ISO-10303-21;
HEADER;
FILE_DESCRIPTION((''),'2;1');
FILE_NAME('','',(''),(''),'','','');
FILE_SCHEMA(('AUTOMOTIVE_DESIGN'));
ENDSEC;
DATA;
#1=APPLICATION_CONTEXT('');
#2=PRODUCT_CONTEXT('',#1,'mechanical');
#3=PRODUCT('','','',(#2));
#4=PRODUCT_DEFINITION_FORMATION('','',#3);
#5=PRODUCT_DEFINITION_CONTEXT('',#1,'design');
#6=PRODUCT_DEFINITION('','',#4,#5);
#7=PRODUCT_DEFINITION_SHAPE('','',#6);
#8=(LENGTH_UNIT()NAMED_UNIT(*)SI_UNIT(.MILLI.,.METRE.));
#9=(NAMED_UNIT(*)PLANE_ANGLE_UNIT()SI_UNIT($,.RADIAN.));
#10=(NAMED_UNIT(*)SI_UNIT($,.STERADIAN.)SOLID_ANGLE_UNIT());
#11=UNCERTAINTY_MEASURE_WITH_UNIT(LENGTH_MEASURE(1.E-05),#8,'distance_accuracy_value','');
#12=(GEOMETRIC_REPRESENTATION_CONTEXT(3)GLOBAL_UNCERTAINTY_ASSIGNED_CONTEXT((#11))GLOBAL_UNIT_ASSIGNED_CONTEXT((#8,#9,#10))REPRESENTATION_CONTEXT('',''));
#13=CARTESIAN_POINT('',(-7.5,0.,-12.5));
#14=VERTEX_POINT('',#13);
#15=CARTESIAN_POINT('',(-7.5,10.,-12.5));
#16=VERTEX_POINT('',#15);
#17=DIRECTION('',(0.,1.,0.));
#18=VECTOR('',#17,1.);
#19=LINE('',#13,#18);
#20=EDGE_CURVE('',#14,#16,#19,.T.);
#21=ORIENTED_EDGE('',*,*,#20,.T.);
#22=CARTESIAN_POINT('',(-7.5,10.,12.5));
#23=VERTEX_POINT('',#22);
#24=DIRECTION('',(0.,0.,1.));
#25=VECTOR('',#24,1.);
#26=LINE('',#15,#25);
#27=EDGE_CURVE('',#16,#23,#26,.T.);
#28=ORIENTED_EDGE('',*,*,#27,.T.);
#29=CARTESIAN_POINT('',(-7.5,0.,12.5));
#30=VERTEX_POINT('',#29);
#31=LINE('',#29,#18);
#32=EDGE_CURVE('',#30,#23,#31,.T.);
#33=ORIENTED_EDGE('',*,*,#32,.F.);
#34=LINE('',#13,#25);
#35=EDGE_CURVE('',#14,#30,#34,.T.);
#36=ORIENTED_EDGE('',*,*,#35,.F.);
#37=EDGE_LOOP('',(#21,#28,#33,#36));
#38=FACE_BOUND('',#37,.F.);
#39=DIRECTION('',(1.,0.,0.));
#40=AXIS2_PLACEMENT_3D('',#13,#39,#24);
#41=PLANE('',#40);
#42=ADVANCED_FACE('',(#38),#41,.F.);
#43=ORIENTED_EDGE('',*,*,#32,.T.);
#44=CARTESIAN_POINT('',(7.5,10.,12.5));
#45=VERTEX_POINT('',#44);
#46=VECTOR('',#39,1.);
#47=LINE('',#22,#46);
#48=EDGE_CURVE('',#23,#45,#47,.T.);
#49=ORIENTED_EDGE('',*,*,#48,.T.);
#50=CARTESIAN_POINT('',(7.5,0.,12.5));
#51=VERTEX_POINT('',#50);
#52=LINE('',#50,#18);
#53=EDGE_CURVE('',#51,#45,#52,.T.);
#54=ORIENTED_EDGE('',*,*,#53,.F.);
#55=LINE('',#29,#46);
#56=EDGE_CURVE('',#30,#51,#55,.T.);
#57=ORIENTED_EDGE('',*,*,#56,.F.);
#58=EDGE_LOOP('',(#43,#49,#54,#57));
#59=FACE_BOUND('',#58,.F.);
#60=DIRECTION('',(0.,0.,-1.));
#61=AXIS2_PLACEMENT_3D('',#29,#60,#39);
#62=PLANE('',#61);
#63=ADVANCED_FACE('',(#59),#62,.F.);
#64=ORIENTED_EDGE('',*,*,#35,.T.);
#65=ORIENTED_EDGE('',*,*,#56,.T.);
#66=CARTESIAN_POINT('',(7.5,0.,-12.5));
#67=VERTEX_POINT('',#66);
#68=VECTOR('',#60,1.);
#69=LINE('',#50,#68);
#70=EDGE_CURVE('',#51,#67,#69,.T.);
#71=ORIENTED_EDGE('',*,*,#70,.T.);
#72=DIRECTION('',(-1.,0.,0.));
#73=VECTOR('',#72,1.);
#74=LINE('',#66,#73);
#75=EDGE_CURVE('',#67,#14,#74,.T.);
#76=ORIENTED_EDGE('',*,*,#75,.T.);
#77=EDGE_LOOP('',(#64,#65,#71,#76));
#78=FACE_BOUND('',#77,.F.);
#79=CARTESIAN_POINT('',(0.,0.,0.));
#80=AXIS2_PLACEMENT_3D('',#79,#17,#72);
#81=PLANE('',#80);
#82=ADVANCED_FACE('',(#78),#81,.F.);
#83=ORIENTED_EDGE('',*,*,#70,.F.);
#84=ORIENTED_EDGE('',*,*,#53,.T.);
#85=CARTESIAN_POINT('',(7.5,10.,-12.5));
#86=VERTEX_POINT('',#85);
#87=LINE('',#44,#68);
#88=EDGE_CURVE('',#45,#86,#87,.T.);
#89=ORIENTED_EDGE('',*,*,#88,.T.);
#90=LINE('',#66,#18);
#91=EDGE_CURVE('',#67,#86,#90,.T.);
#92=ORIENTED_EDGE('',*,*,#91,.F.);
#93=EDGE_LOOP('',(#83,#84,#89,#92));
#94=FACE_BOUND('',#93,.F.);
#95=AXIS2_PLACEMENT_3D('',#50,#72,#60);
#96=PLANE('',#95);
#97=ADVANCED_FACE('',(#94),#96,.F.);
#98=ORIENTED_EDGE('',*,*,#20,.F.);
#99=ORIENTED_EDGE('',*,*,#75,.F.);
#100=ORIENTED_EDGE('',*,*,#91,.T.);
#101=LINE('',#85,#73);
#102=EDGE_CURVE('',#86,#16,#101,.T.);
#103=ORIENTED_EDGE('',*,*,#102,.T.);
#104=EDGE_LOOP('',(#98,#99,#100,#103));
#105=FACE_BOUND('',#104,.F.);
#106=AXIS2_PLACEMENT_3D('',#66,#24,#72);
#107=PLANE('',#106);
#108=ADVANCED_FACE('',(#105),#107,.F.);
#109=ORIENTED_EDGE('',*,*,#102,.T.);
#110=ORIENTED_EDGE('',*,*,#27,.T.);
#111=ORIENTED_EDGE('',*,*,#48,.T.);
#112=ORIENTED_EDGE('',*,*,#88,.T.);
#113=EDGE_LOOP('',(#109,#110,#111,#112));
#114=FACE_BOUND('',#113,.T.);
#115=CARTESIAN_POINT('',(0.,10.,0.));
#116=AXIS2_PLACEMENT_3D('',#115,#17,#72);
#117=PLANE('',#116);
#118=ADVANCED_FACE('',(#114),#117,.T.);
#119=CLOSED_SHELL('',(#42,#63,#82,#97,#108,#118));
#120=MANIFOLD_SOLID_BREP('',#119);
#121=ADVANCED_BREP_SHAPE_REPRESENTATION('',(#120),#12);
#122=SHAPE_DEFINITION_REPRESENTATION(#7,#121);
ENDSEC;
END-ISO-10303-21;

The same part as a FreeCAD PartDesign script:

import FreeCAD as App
import Part
import Sketcher
from FreeCAD import Vector
Q = App.Units.Quantity


def add_polygon(sketch, points):
    """Adds a closed chain of lines whose ends are joined by coincident constraints."""
    first, n = sketch.GeometryCount, len(points)
    for a, b in zip(points, points[1:] + points[:1]):
        sketch.addGeometry(Part.LineSegment(App.Vector(*a, 0), App.Vector(*b, 0)), False)
    for i in range(n):
        sketch.addConstraint(Sketcher.Constraint("Coincident", first + i, 2, first + (i + 1) % n, 1))

doc = App.newDocument("Part")
body = doc.addObject("PartDesign::Body", "Body")

sketch1 = body.newObject("Sketcher::SketchObject", "Sketch")
sketch1.AttachmentSupport = (doc.getObject("XZ_Plane"), [""])
sketch1.MapMode = "FlatFace"
add_polygon(sketch1, [(8, 12), (8, -12), (-8, -12), (-8, 12)])
sketch1.addConstraint([
    Sketcher.Constraint("Vertical", 0),
    Sketcher.Constraint("Horizontal", 1),
    Sketcher.Constraint("Vertical", 2),
    Sketcher.Constraint("Horizontal", 3),
    Sketcher.Constraint("Symmetric", 0, 2, 2, 2, -1, 1),
    Sketcher.Constraint("DistanceX", 1, 2, 1, 1, Q("15 mm")),
    Sketcher.Constraint("DistanceY", 0, 2, 0, 1, Q("25 mm")),
])
pad1 = body.newObject("PartDesign::Pad", "Pad")
pad1.Profile = sketch1
pad1.Length = 10
pad1.Reversed = True

doc.recompute()
